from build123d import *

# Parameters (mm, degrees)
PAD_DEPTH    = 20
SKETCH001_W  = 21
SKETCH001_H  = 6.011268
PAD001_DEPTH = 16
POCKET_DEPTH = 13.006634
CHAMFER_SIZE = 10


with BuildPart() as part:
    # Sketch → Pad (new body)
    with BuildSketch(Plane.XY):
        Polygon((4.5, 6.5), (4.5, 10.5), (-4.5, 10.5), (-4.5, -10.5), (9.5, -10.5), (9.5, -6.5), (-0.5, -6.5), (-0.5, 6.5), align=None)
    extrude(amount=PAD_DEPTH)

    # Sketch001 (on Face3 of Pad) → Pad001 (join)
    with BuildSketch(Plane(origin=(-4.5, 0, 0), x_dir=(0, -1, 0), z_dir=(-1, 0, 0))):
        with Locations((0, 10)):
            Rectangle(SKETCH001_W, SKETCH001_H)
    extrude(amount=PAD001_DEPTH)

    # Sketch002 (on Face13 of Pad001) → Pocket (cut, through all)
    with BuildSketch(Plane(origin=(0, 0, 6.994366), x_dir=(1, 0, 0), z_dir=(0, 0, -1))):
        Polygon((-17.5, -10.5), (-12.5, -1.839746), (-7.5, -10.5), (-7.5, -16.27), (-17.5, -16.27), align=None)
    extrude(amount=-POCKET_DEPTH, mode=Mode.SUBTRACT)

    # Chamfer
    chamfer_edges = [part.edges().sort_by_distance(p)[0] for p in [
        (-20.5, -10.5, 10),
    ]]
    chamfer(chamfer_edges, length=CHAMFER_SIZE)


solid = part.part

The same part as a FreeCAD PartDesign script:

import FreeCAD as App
import Part
import Sketcher
from FreeCAD import Vector
Q = App.Units.Quantity


def edges_at(feature, points):
    """Names of the edges that pass closest to the given points."""
    edges = feature.Shape.Edges
    near = lambda p: min(range(len(edges)), key=lambda i: edges[i].distToShape(Part.Vertex(*p))[0])
    return sorted({f"Edge{near(p) + 1}" for p in points})


def add_polygon(sketch, points):
    """Adds a closed chain of lines whose ends are joined by coincident constraints."""
    first, n = sketch.GeometryCount, len(points)
    for a, b in zip(points, points[1:] + points[:1]):
        sketch.addGeometry(Part.LineSegment(App.Vector(*a, 0), App.Vector(*b, 0)), False)
    for i in range(n):
        sketch.addConstraint(Sketcher.Constraint("Coincident", first + i, 2, first + (i + 1) % n, 1))

doc = App.newDocument("Part")
body = doc.addObject("PartDesign::Body", "Body")

# Sketch on XY plane
sketch1 = body.newObject("Sketcher::SketchObject", "Sketch")
sketch1.AttachmentSupport = (doc.getObject("XY_Plane"), [""])
sketch1.MapMode = "FlatFace"
add_polygon(sketch1, [(4.5, 6.5), (4.5, 10.5), (-4.5, 10.5), (-4.5, -10.5), (9.5, -10.5), (9.5, -6.5), (-0.5, -6.5), (-0.5, 6.5)])  # lines 0-7
sketch1.addConstraint([
    Sketcher.Constraint("Vertical", 0),
    Sketcher.Constraint("Horizontal", 1),
    Sketcher.Constraint("Vertical", 2),
    Sketcher.Constraint("Horizontal", 3),
    Sketcher.Constraint("Vertical", 4),
    Sketcher.Constraint("Horizontal", 5),
    Sketcher.Constraint("Vertical", 6),
    Sketcher.Constraint("Horizontal", 7),
    Sketcher.Constraint("Symmetric", 0, 2, 2, 2, -1, 1),
    Sketcher.Constraint("Equal", 0, 4),
    Sketcher.Constraint("DistanceX", 1, 2, 1, 1, Q("9 mm")),
    Sketcher.Constraint("DistanceX", 3, 1, 3, 2, Q("14 mm")),
    Sketcher.Constraint("DistanceX", 5, 2, 5, 1, Q("10 mm")),
    Sketcher.Constraint("DistanceY", 0, 1, 0, 2, Q("4 mm")),
    Sketcher.Constraint("DistanceY", 2, 2, 2, 1, Q("21 mm")),
])
pad1 = body.newObject("PartDesign::Pad", "Pad")
pad1.Profile = sketch1
pad1.Length = 20

# Sketch on YZ plane
sketch2 = body.newObject("Sketcher::SketchObject", "Sketch001")
sketch2.AttachmentSupport = (doc.getObject("YZ_Plane"), [""])
sketch2.MapMode = "FlatFace"
sketch2.AttachmentOffset = App.Placement(Vector(0, 0, -4.5), App.Rotation())
add_polygon(sketch2, [(10.5, 13.005634), (10.5, 6.994366), (-10.5, 6.994366), (-10.5, 13.005634)])  # lines 0-3
sketch2.addConstraint([
    Sketcher.Constraint("Vertical", 0),
    Sketcher.Constraint("Horizontal", 1),
    Sketcher.Constraint("Vertical", 2),
    Sketcher.Constraint("Horizontal", 3),
    Sketcher.Constraint("DistanceX", 1, 2, 1, 1, Q("21 mm")),
    Sketcher.Constraint("DistanceX", -1, 1, 0, 2, Q("10.5 mm")),
    Sketcher.Constraint("DistanceY", 0, 2, 0, 1, Q("6.011268 mm")),
    Sketcher.Constraint("DistanceY", -1, 1, 0, 2, Q("6.994366 mm")),
])
pad2 = body.newObject("PartDesign::Pad", "Pad001")
pad2.Profile = sketch2
pad2.Length = 16
pad2.Reversed = True

# Sketch on XY plane
sketch3 = body.newObject("Sketcher::SketchObject", "Sketch002")
sketch3.AttachmentSupport = (doc.getObject("XY_Plane"), [""])
sketch3.MapMode = "FlatFace"
sketch3.AttachmentOffset = App.Placement(Vector(0, 0, 6.994366), App.Rotation())
add_polygon(sketch3, [(-12.5, 1.839746), (-17.5, 10.5), (-17.5, 16.27), (-7.5, 16.27), (-7.5, 10.5)])  # lines 0-4
sketch3.addConstraint([
    Sketcher.Constraint("Vertical", 1),
    Sketcher.Constraint("Horizontal", 2),
    Sketcher.Constraint("Vertical", 3),
    Sketcher.Constraint("Horizontal", 0, 2, 3, 2),
    Sketcher.Constraint("Equal", 0, 4),
    Sketcher.Constraint("DistanceX", 2, 1, 2, 2, Q("10 mm")),
    Sketcher.Constraint("Angle", 0, Q("120 deg")),
    Sketcher.Constraint("DistanceY", 1, 1, 1, 2, Q("5.77 mm")),
    Sketcher.Constraint("DistanceX", 0, 2, -1, 1, Q("17.5 mm")),
    Sketcher.Constraint("DistanceY", -1, 1, 0, 2, Q("10.5 mm")),
])
pocket1 = body.newObject("PartDesign::Pocket", "Pocket")
pocket1.Profile = sketch3
pocket1.Type = "ThroughAll"
pocket1.Reversed = True
doc.recompute()

chamfer = body.newObject("PartDesign::Chamfer", "Chamfer")
chamfer.Base = (pocket1, edges_at(pocket1, [(-20.5, -10.5, 10)]))
chamfer.Size = 10

doc.recompute()
